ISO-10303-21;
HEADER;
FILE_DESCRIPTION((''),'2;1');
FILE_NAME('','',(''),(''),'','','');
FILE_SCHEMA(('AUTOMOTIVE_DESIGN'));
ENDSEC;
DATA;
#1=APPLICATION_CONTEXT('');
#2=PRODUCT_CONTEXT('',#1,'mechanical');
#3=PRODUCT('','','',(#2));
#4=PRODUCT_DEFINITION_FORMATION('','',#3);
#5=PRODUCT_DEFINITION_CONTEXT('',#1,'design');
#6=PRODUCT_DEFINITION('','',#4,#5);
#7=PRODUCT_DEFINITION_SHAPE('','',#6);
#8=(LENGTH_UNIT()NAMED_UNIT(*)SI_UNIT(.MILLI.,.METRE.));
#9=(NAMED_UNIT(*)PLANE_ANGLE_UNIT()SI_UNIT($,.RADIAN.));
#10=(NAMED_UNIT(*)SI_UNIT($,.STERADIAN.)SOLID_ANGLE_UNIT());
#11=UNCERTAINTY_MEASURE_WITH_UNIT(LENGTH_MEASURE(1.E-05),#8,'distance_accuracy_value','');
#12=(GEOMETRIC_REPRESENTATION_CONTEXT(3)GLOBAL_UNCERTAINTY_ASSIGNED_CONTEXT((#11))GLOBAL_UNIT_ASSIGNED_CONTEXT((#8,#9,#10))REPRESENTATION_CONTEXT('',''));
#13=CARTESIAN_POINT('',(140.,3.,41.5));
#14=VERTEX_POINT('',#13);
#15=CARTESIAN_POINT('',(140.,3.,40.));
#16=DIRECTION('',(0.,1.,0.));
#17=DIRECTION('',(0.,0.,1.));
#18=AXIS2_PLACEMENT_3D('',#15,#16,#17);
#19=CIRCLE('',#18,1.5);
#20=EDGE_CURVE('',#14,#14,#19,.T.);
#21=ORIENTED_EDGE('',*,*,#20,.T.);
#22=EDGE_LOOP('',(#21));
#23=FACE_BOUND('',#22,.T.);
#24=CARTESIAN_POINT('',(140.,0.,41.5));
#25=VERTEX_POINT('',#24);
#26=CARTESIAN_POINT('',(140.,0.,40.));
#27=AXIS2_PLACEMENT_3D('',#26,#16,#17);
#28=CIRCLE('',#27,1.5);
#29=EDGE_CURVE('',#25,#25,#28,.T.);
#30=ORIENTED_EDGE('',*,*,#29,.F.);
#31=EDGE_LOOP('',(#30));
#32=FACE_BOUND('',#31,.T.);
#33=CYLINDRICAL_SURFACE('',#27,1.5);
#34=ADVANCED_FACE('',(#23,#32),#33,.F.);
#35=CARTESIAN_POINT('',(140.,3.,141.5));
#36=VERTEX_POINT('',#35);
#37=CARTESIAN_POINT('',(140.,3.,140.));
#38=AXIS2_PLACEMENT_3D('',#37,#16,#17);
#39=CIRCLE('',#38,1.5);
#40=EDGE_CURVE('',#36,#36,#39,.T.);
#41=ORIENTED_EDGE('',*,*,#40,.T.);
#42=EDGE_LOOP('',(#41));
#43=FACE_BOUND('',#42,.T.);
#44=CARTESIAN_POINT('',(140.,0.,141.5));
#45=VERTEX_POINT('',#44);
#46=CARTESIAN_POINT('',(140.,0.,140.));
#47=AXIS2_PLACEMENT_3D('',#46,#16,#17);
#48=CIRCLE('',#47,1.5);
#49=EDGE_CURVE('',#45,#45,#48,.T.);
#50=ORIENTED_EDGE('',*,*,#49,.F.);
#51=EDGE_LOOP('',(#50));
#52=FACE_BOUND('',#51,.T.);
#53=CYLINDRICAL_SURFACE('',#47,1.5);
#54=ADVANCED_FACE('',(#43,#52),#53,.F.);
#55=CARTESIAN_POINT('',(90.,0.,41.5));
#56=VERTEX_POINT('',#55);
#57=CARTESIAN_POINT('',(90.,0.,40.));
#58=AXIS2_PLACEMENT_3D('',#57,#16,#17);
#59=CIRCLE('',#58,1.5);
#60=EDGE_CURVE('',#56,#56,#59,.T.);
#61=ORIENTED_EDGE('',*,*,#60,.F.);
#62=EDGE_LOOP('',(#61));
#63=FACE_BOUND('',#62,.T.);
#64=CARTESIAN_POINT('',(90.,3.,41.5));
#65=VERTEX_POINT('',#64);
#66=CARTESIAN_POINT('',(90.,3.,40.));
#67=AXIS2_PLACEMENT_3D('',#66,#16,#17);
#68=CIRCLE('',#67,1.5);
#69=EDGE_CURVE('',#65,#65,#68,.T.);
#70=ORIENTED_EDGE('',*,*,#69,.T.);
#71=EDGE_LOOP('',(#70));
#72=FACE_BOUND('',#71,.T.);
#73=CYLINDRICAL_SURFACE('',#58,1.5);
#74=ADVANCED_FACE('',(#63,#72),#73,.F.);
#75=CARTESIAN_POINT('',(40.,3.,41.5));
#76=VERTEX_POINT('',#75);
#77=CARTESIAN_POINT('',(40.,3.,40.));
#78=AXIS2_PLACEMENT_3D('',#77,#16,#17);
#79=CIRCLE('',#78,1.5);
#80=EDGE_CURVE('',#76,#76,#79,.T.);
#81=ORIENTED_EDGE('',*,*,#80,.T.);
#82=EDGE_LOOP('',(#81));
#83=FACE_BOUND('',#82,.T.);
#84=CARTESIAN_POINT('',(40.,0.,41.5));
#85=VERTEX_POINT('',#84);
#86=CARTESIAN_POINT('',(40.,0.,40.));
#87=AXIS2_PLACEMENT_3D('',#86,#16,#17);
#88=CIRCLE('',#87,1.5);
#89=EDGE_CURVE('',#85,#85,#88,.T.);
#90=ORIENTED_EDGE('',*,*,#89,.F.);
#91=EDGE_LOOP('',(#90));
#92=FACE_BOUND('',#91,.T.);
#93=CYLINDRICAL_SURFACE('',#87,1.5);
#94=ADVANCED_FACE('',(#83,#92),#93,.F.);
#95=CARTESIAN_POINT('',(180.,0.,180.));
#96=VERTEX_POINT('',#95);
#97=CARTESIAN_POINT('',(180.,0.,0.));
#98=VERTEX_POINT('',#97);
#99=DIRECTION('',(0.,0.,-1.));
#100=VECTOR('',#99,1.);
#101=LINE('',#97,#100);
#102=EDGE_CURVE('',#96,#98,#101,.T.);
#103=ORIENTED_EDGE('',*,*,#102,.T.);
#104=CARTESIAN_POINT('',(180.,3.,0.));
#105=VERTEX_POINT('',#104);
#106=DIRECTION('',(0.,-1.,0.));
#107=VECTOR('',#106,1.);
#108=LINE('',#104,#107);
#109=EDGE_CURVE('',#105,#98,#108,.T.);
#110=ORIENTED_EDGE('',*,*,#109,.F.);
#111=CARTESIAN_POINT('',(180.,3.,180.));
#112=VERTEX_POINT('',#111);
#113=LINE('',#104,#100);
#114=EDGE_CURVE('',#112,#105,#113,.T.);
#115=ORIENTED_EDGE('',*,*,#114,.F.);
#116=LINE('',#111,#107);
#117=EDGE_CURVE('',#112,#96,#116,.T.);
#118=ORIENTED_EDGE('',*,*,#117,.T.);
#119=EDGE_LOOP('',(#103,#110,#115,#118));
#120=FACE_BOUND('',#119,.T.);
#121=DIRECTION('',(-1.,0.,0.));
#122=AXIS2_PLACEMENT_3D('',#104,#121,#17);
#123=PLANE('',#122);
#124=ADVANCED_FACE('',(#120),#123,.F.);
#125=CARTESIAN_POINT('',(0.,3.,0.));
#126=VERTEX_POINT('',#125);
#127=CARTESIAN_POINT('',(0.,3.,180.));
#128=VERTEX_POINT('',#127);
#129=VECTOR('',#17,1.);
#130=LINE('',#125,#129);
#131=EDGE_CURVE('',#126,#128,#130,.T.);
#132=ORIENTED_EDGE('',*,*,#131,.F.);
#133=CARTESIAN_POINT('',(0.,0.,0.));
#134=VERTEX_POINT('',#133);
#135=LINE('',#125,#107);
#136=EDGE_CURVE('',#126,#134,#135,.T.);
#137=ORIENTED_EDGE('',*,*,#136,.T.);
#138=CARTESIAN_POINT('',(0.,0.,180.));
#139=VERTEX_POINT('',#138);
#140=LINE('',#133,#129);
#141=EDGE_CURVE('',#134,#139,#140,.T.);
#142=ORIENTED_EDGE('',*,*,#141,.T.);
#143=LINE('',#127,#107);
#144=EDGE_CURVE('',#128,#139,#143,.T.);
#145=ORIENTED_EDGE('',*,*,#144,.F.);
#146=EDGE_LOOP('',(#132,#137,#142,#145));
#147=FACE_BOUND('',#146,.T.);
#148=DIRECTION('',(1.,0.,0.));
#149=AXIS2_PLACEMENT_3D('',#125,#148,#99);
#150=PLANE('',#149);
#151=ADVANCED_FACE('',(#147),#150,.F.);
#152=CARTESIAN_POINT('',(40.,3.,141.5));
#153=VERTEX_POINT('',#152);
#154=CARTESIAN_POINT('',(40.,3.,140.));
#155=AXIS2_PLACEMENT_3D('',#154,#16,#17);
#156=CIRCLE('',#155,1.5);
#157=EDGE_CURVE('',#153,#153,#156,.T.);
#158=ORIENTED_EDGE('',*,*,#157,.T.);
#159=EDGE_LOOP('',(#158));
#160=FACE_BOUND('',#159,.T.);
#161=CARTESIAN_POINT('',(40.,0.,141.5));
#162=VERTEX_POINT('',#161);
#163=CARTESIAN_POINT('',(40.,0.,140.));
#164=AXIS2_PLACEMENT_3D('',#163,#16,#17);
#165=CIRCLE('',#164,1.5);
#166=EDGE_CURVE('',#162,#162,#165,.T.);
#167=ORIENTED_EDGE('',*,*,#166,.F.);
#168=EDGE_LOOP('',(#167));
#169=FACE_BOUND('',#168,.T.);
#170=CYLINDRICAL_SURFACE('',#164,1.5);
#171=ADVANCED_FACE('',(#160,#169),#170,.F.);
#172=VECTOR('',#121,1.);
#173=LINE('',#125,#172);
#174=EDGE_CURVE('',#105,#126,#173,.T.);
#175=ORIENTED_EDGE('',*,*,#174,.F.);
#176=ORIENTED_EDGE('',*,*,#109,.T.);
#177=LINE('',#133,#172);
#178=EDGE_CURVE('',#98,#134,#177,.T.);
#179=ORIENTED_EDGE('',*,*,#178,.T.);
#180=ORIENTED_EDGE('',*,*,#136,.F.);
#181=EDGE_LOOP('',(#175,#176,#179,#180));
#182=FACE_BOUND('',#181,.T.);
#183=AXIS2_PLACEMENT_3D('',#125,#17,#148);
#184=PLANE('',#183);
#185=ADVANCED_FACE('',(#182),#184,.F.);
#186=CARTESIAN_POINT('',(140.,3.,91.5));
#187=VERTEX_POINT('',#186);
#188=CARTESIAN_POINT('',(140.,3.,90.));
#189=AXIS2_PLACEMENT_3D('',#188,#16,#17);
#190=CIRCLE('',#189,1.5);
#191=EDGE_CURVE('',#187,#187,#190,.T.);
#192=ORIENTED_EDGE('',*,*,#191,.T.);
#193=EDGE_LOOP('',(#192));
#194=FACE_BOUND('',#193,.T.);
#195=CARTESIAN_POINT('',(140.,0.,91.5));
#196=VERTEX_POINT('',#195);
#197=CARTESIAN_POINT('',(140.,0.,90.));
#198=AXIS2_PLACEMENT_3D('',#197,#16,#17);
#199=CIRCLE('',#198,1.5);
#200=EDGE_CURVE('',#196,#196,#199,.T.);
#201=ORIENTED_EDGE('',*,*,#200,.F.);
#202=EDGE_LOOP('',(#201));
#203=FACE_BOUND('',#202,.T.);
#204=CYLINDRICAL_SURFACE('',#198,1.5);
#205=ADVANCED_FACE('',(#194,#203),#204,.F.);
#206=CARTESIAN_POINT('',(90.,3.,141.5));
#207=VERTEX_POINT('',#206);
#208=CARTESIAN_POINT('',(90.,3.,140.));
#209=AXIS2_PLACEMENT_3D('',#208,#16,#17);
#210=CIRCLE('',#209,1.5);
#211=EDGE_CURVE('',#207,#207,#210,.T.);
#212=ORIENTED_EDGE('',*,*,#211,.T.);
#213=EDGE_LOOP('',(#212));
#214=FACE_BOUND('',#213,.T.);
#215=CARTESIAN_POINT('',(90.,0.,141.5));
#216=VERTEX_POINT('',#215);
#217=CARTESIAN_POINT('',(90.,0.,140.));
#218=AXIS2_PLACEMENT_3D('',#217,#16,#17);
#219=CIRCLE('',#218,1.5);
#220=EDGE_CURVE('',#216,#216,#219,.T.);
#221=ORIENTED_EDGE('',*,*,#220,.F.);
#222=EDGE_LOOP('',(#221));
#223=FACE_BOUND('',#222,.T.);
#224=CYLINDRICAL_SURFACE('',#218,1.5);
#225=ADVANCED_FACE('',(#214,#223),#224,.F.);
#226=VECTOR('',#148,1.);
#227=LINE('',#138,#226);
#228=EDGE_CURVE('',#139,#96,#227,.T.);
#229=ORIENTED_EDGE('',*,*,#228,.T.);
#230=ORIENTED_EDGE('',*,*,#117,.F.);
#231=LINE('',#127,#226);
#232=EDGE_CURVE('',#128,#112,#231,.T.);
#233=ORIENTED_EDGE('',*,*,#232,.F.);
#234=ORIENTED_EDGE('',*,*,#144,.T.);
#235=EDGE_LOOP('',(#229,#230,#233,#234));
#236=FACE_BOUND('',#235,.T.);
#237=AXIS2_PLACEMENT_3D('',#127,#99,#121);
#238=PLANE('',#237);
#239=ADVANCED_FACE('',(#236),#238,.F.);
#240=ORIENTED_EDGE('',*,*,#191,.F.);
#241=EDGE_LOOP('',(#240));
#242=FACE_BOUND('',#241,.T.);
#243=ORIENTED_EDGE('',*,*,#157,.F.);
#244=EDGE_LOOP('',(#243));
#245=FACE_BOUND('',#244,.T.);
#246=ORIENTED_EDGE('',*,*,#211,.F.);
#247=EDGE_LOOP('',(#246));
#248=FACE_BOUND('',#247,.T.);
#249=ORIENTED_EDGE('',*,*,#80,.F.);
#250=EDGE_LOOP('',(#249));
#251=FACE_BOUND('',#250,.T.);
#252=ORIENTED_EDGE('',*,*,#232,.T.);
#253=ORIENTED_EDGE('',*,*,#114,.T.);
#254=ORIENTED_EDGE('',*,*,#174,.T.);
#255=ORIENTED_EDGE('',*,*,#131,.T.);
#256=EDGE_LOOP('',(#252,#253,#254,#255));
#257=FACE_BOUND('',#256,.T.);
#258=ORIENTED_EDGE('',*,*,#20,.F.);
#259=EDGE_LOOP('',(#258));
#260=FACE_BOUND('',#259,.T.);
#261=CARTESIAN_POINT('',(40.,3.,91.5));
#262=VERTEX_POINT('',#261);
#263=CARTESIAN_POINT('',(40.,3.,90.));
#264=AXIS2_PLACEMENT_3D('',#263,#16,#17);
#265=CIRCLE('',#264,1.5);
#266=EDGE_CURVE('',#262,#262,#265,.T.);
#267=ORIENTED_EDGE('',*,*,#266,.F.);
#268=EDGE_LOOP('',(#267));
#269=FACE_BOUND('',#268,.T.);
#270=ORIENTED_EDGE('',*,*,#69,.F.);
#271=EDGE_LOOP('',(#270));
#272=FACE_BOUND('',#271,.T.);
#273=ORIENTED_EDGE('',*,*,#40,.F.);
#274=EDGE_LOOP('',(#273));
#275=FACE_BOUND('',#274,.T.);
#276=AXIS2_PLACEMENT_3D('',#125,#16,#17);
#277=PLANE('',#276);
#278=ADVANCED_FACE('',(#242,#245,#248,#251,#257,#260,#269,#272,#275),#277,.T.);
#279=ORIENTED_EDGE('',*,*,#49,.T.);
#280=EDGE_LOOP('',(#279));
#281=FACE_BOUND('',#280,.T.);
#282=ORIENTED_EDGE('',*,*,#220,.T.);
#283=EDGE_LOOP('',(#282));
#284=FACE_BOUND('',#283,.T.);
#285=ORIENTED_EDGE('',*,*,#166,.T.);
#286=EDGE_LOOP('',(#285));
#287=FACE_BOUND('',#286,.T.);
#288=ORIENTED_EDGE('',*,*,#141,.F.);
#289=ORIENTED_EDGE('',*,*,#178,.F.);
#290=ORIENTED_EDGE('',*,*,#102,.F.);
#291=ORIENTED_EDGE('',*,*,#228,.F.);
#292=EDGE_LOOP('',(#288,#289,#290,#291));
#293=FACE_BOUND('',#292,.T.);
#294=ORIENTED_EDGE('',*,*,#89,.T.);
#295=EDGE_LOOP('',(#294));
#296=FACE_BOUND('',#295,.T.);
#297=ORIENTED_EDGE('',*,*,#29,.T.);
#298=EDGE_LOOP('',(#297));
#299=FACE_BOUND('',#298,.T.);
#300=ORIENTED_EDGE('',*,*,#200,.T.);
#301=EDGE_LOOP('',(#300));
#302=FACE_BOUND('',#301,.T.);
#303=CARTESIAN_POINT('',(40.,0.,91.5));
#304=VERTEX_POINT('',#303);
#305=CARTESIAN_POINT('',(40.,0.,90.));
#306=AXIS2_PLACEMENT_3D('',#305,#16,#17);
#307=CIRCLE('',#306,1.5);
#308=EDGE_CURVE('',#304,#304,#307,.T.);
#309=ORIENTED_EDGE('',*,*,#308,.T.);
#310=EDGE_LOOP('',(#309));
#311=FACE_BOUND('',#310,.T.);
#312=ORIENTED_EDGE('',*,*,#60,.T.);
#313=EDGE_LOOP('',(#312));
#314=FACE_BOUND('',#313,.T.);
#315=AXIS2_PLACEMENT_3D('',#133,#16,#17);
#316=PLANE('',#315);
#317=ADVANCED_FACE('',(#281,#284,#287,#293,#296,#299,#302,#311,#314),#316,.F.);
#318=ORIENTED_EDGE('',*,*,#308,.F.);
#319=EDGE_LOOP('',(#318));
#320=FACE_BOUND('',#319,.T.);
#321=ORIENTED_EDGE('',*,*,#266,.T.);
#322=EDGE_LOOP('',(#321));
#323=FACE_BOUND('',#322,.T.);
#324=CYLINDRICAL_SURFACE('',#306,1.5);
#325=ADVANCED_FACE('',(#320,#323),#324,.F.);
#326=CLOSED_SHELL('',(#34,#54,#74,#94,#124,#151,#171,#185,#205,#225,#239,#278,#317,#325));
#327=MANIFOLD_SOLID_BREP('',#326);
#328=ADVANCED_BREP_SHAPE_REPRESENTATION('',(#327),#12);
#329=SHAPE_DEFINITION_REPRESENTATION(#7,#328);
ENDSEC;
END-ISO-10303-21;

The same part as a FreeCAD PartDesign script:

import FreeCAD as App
import Part
import Sketcher
from FreeCAD import Vector


def add_polygon(sketch, points):
    """Adds a closed chain of lines whose ends are joined by coincident constraints."""
    first, n = sketch.GeometryCount, len(points)
    for a, b in zip(points, points[1:] + points[:1]):
        sketch.addGeometry(Part.LineSegment(App.Vector(*a, 0), App.Vector(*b, 0)), False)
    for i in range(n):
        sketch.addConstraint(Sketcher.Constraint("Coincident", first + i, 2, first + (i + 1) % n, 1))

doc = App.newDocument("Part")
params = doc.addObject("Spreadsheet::Sheet", "Params")
for row, (alias, value) in enumerate([
    ("sketch1_width", "180 mm"),
    ("pad1_length", "3 mm"),
    ("sketch2_diameter", "3 mm"),
    ("pocket1_length", "3 mm"),
], start=1):
    params.set(f"A{row}", alias)
    params.set(f"B{row}", "=" + value)
    params.setAlias(f"B{row}", alias)

body = doc.addObject("PartDesign::Body", "Body")

# Sketch on XZ plane
sketch1 = doc.addObject("Sketcher::SketchObject", "Sketch")
body.addObject(sketch1)
sketch1.AttachmentSupport = (doc.XZ_Plane, [""])
sketch1.MapMode = "FlatFace"
add_polygon(sketch1, [(0, 0), (0, 180), (180, 180), (180, 0)])  # lines 0-3
sketch1.addConstraint([
    Sketcher.Constraint("Vertical", 0),
    Sketcher.Constraint("Horizontal", 1),
    Sketcher.Constraint("Vertical", 2),
    Sketcher.Constraint("Horizontal", 3),
    Sketcher.Constraint("Coincident", 3, 2, -1, 1),
    Sketcher.Constraint("Equal", 3, 0),
    Sketcher.Constraint("DistanceX", 1, 1, 1, 2, 180.0),
])
sketch1.setExpression("Constraints[10]", "Params.sketch1_width")
pad1 = doc.addObject("PartDesign::Pad", "Pad")
body.addObject(pad1)
pad1.Profile = sketch1
pad1.setExpression("Length", "Params.pad1_length")
pad1.Reversed = True

# Sketch on XZ plane
sketch2 = doc.addObject("Sketcher::SketchObject", "Sketch001")
body.addObject(sketch2)
sketch2.AttachmentSupport = (doc.XZ_Plane, [""])
sketch2.MapMode = "FlatFace"
sketch2.AttachmentOffset = App.Placement(Vector(0, 0, -3), App.Rotation())
sketch2.addGeometry([
    Part.Circle(Vector(40, 40, 0), Vector(0, 0, 1), 1.5),  # 0
    Part.Circle(Vector(140, 40, 0), Vector(0, 0, 1), 1.5),  # 1
    Part.Circle(Vector(140, 140, 0), Vector(0, 0, 1), 1.5),  # 2
    Part.Circle(Vector(40, 140, 0), Vector(0, 0, 1), 1.5),  # 3
    Part.Circle(Vector(90, 40, 0), Vector(0, 0, 1), 1.5),  # 4
    Part.Circle(Vector(140, 90, 0), Vector(0, 0, 1), 1.5),  # 5
    Part.Circle(Vector(90, 140, 0), Vector(0, 0, 1), 1.5),  # 6
    Part.Circle(Vector(40, 90, 0), Vector(0, 0, 1), 1.5),  # 7
], False)
sketch2.addConstraint([
    Sketcher.Constraint("Equal", 0, 1),
    Sketcher.Constraint("Equal", 1, 2),
    Sketcher.Constraint("Equal", 2, 3),
    Sketcher.Constraint("Equal", 3, 4),
    Sketcher.Constraint("Equal", 4, 5),
    Sketcher.Constraint("Equal", 5, 6),
    Sketcher.Constraint("Equal", 6, 7),
    Sketcher.Constraint("Horizontal", 0, 3, 1, 3),
    Sketcher.Constraint("Horizontal", 2, 3, 3, 3),
    Sketcher.Constraint("Horizontal", 1, 3, 4, 3),
    Sketcher.Constraint("Horizontal", 3, 3, 6, 3),
    Sketcher.Constraint("Horizontal", 5, 3, 7, 3),
    Sketcher.Constraint("Vertical", 1, 3, 2, 3),
    Sketcher.Constraint("Vertical", 0, 3, 3, 3),
    Sketcher.Constraint("Vertical", 2, 3, 5, 3),
    Sketcher.Constraint("Vertical", 4, 3, 6, 3),
    Sketcher.Constraint("Vertical", 3, 3, 7, 3),
    Sketcher.Constraint("Diameter", 0, 3.0),
    Sketcher.Constraint("DistanceX", -1, 1, 0, 3, 40.0),
    Sketcher.Constraint("DistanceY", -1, 1, 0, 3, 40.0),
    Sketcher.Constraint("DistanceX", -1, 1, 1, 3, 140.0),
    Sketcher.Constraint("DistanceY", -1, 1, 2, 3, 140.0),
    Sketcher.Constraint("DistanceX", -1, 1, 4, 3, 90.0),
    Sketcher.Constraint("DistanceY", -1, 1, 5, 3, 90.0),
])
sketch2.setExpression("Constraints[17]", "Params.sketch2_diameter")
pocket1 = doc.addObject("PartDesign::Pocket", "Pocket")
body.addObject(pocket1)
pocket1.Profile = sketch2
pocket1.setExpression("Length", "Params.pocket1_length")
pocket1.Reversed = True

doc.recompute()
